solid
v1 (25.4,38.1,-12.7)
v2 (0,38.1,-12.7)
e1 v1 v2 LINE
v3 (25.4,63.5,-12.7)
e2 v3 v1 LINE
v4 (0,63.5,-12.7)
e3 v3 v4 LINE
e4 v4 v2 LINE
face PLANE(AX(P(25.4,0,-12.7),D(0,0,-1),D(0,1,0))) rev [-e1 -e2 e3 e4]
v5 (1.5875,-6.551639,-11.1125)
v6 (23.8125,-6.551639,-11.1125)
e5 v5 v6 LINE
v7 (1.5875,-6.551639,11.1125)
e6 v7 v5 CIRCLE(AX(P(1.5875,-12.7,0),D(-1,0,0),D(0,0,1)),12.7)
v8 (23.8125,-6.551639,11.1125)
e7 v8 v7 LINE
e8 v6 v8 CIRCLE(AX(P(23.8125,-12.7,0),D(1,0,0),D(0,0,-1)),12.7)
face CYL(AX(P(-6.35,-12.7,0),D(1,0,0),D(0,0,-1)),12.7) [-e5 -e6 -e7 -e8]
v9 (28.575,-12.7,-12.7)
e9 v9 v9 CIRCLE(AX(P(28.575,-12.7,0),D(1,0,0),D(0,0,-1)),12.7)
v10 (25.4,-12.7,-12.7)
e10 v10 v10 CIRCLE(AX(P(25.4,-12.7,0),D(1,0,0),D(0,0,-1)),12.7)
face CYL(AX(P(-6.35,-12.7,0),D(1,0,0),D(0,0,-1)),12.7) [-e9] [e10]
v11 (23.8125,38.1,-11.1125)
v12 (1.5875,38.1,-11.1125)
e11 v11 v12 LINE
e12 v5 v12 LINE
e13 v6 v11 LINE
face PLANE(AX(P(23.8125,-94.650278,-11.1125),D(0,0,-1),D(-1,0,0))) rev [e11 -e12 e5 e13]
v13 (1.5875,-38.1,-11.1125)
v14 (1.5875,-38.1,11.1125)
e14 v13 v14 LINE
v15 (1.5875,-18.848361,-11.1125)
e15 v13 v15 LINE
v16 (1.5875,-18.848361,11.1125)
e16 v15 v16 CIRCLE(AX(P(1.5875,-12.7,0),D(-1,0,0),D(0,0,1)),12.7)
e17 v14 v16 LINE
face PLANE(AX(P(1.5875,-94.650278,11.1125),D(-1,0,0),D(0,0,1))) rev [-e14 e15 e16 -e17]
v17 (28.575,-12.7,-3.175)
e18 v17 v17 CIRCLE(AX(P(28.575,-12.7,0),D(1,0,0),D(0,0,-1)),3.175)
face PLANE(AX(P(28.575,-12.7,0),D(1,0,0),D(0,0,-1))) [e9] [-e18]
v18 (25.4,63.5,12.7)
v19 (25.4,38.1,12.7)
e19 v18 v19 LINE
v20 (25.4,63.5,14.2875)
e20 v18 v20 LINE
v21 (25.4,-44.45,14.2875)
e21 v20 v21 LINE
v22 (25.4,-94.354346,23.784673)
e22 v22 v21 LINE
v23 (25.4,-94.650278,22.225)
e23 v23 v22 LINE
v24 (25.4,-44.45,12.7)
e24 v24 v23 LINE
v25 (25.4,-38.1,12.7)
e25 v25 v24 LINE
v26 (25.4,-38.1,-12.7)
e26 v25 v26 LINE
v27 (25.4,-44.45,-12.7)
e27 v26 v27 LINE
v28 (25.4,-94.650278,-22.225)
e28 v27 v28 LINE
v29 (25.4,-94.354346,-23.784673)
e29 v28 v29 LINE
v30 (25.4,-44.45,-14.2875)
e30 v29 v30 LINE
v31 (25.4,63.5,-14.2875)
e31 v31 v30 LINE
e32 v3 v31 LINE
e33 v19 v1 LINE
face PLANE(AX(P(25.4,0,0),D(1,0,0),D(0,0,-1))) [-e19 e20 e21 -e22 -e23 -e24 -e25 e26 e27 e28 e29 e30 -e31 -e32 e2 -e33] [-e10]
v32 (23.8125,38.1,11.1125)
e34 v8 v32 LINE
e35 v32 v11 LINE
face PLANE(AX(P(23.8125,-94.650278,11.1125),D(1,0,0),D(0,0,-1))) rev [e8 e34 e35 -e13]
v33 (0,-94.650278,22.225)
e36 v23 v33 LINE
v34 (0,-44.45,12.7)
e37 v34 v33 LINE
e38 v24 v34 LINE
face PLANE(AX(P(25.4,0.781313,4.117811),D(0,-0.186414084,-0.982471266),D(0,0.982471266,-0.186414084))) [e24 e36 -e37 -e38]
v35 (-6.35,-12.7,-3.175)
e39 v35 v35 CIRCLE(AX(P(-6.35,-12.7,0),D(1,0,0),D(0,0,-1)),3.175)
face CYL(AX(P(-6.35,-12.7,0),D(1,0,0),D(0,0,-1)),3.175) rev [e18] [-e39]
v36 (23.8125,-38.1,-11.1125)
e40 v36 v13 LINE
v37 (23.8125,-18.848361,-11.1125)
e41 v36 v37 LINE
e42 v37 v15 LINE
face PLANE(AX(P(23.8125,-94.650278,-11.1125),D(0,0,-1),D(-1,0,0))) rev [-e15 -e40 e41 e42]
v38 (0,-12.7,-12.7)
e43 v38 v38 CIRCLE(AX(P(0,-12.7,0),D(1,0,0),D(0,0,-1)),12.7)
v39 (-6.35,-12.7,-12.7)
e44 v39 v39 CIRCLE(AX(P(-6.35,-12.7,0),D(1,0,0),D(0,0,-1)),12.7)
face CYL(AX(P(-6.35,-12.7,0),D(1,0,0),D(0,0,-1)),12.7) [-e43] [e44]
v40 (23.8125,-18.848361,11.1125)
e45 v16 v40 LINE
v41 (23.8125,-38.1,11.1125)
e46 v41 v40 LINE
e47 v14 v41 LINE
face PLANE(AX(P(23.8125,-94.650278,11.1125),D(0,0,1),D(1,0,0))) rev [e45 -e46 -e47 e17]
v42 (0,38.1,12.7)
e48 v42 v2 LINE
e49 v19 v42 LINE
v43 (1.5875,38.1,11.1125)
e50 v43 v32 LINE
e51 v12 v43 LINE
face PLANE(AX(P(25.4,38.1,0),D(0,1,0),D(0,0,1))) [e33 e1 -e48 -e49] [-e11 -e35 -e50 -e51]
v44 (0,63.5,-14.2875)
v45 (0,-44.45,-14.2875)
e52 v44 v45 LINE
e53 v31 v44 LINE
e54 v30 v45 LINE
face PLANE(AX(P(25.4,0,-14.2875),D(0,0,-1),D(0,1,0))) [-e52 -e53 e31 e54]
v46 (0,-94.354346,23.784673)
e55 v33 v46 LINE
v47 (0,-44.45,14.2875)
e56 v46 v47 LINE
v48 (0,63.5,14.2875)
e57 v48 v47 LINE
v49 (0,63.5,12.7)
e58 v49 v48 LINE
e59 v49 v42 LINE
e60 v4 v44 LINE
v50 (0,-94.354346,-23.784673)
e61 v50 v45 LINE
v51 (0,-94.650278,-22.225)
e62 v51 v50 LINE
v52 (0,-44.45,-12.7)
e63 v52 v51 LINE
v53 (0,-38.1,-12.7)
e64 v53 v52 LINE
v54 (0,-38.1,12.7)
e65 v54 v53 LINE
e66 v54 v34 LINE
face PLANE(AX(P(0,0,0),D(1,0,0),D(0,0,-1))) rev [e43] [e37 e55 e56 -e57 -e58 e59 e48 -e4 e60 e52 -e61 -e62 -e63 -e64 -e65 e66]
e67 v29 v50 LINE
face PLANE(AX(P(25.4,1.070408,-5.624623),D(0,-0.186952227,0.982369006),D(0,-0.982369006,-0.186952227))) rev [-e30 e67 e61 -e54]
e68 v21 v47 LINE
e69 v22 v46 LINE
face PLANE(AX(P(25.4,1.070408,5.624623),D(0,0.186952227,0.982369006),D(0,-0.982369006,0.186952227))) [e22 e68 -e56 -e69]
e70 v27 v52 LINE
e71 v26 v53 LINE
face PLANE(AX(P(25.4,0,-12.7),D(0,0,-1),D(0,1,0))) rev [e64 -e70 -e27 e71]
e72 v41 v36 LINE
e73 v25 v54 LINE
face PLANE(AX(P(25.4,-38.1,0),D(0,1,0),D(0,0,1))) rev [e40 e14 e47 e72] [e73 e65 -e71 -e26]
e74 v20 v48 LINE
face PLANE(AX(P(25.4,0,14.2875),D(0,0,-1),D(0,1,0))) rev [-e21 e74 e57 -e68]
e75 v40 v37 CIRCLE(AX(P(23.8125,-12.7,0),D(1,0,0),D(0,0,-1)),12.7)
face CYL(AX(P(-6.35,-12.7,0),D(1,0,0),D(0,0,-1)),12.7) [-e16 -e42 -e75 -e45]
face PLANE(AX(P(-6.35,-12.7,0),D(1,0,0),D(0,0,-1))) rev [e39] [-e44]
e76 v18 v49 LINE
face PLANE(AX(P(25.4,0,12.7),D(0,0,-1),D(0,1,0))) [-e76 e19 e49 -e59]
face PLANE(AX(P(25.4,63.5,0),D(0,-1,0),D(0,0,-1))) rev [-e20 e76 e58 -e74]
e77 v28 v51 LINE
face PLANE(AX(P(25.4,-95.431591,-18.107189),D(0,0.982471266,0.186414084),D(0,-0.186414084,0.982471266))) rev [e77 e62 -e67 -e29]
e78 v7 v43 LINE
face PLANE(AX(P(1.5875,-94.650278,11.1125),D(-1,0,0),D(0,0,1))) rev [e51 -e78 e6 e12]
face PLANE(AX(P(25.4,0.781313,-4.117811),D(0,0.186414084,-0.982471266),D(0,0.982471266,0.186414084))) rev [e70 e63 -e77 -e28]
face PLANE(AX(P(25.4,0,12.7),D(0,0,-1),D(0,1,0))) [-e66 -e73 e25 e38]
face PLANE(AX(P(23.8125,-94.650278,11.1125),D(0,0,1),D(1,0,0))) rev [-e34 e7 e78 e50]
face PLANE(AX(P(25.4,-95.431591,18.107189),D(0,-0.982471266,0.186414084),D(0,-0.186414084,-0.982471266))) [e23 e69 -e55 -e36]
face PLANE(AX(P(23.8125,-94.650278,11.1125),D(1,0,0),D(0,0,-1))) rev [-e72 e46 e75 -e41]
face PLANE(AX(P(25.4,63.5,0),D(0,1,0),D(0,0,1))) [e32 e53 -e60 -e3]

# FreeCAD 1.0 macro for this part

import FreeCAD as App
import Part
import Sketcher

V = App.Vector
Q = App.Units.Quantity

doc = App.newDocument("Part")
body = doc.addObject("PartDesign::Body", "Body")

# Sketch on YZ plane
sketch1 = doc.addObject("Sketcher::SketchObject", "Sketch")
body.addObject(sketch1)
sketch1.AttachmentSupport = (doc.YZ_Plane, [""])
sketch1.MapMode = "FlatFace"
sketch1.addGeometry([
    Part.LineSegment(V(-38.1, 12.7, 0), V(-38.1, -12.7, 0)),  # 0
    Part.LineSegment(V(-38.1, -12.7, 0), V(-44.5, -12.7, 0)),  # 1
    Part.LineSegment(V(-44.5, -12.7, 0), V(-94.7, -22.2, 0)),  # 2
    Part.LineSegment(V(-94.7, -22.2, 0), V(-94.4, -23.8, 0)),  # 3
    Part.LineSegment(V(-94.4, -23.8, 0), V(-44.5, -14.3, 0)),  # 4
    Part.LineSegment(V(-44.5, -14.3, 0), V(63.5, -14.3, 0)),  # 5
    Part.LineSegment(V(63.5, -14.3, 0), V(63.5, -12.7, 0)),  # 6
    Part.LineSegment(V(63.5, -12.7, 0), V(38.1, -12.7, 0)),  # 7
    Part.LineSegment(V(38.1, -12.7, 0), V(38.1, 12.7, 0)),  # 8
    Part.LineSegment(V(38.1, 12.7, 0), V(63.5, 12.7, 0)),  # 9
    Part.LineSegment(V(63.5, 12.7, 0), V(63.5, 14.3, 0)),  # 10
    Part.LineSegment(V(63.5, 14.3, 0), V(-44.5, 14.3, 0)),  # 11
    Part.LineSegment(V(-44.5, 14.3, 0), V(-94.4, 23.8, 0)),  # 12
    Part.LineSegment(V(-94.4, 23.8, 0), V(-94.7, 22.2, 0)),  # 13
    Part.LineSegment(V(-94.7, 22.2, 0), V(-44.5, 12.7, 0)),  # 14
    Part.LineSegment(V(-44.5, 12.7, 0), V(-38.1, 12.7, 0)),  # 15
], False)
sketch1.addConstraint([
    Sketcher.Constraint("Coincident", 0, 2, 1, 1),
    Sketcher.Constraint("Coincident", 1, 2, 2, 1),
    Sketcher.Constraint("Coincident", 2, 2, 3, 1),
    Sketcher.Constraint("Coincident", 3, 2, 4, 1),
    Sketcher.Constraint("Coincident", 4, 2, 5, 1),
    Sketcher.Constraint("Coincident", 5, 2, 6, 1),
    Sketcher.Constraint("Coincident", 6, 2, 7, 1),
    Sketcher.Constraint("Coincident", 7, 2, 8, 1),
    Sketcher.Constraint("Coincident", 8, 2, 9, 1),
    Sketcher.Constraint("Coincident", 9, 2, 10, 1),
    Sketcher.Constraint("Coincident", 10, 2, 11, 1),
    Sketcher.Constraint("Coincident", 11, 2, 12, 1),
    Sketcher.Constraint("Coincident", 12, 2, 13, 1),
    Sketcher.Constraint("Coincident", 13, 2, 14, 1),
    Sketcher.Constraint("Coincident", 14, 2, 15, 1),
    Sketcher.Constraint("Coincident", 15, 2, 0, 1),
    Sketcher.Constraint("Vertical", 0),
    Sketcher.Constraint("Horizontal", 1),
    Sketcher.Constraint("Horizontal", 5),
    Sketcher.Constraint("Vertical", 6),
    Sketcher.Constraint("Horizontal", 7),
    Sketcher.Constraint("Vertical", 8),
    Sketcher.Constraint("Horizontal", 9),
    Sketcher.Constraint("Vertical", 10),
    Sketcher.Constraint("Horizontal", 11),
    Sketcher.Constraint("Horizontal", 15),
    Sketcher.Constraint("Symmetric", 0, 2, 8, 2, -1, 1),
    Sketcher.Constraint("Symmetric", 6, 2, 9, 2, -1),
    Sketcher.Constraint("Symmetric", 4, 2, 11, 2, -1),
    Sketcher.Constraint("Symmetric", 3, 2, 12, 2, -1),
    Sketcher.Constraint("Symmetric", 2, 2, 13, 2, -1),
    Sketcher.Constraint("Symmetric", 1, 2, 14, 2, -1),
    Sketcher.Constraint("Perpendicular", 2, 3),
    Sketcher.Constraint("Vertical", 1, 2, 4, 2),
    Sketcher.Constraint("Equal", 9, 0),
    Sketcher.Constraint("DistanceX", 7, 2, 7, 1, Q("1 in")),
    Sketcher.Constraint("Distance", 4, Q("2 in")),
    Sketcher.Constraint("DistanceX", 0, 2, 5, 2, Q("4 in")),
    Sketcher.Constraint("DistanceX", 1, 2, 1, 1, Q("0.25 in")),
    Sketcher.Constraint("DistanceY", 6, 1, 6, 2, Q("0.0625 in")),
    Sketcher.Constraint("DistanceY", 2, 2, 13, 2, Q("1.75 in")),
    Sketcher.Constraint("Distance", 3, Q("0.0625 in")),
])
pad1 = doc.addObject("PartDesign::Pad", "Pad")
body.addObject(pad1)
pad1.Profile = sketch1
pad1.Length = Q("1 in")

# Sketch on XZ plane
sketch2 = doc.addObject("Sketcher::SketchObject", "Sketch001")
body.addObject(sketch2)
sketch2.AttachmentSupport = (doc.XZ_Plane, [""])
sketch2.MapMode = "FlatFace"
sketch2.AttachmentOffset = App.Placement(V(0, 0, -1.5 * 25.4), App.Rotation())
sketch2.addGeometry([
    Part.LineSegment(V(2, -11, 0), V(2, 11, 0)),
    Part.LineSegment(V(2, 11, 0), V(24, 11, 0)),
    Part.LineSegment(V(24, 11, 0), V(24, -11, 0)),
    Part.LineSegment(V(24, -11, 0), V(2, -11, 0)),
], False)
sketch2.addConstraint([
    Sketcher.Constraint("Coincident", 0, 2, 1, 1),
    Sketcher.Constraint("Coincident", 1, 2, 2, 1),
    Sketcher.Constraint("Coincident", 2, 2, 3, 1),
    Sketcher.Constraint("Coincident", 3, 2, 0, 1),
    Sketcher.Constraint("Vertical", 0),
    Sketcher.Constraint("Horizontal", 1),
    Sketcher.Constraint("Vertical", 2),
    Sketcher.Constraint("Horizontal", 3),
    Sketcher.Constraint("Equal", 3, 0),
    Sketcher.Constraint("DistanceX", 1, 1, 1, 2, Q("0.875 in")),
    Sketcher.Constraint("DistanceX", -1, 1, 0, 2, Q("0.0625 in")),
    Sketcher.Constraint("DistanceY", -1, 1, 0, 2, Q("0.4375 in")),
])
pocket1 = doc.addObject("PartDesign::Pocket", "Pocket")
body.addObject(pocket1)
pocket1.Profile = sketch2
pocket1.Type = "ThroughAll"
pocket1.Reversed = True

# Sketch on YZ plane
sketch3 = doc.addObject("Sketcher::SketchObject", "Sketch002")
body.addObject(sketch3)
sketch3.AttachmentSupport = (doc.YZ_Plane, [""])
sketch3.MapMode = "FlatFace"
sketch3.AttachmentOffset = App.Placement(V(0, 0, 1 * 25.4), App.Rotation())
sketch3.addGeometry(Part.Circle(V(-13, 0, 0), V(0, 0, 1), 13), False)
sketch3.addConstraint([
    Sketcher.Constraint("PointOnObject", 0, 3, -1),
    Sketcher.Constraint("Diameter", 0, Q("1 in")),
    Sketcher.Constraint("DistanceX", 0, 3, -1, 1, Q("0.5 in")),
])
pad2 = doc.addObject("PartDesign::Pad", "Pad001")
body.addObject(pad2)
pad2.Profile = sketch3
pad2.Type = "TwoLengths"
pad2.Length = Q("0.125 in")
pad2.Length2 = Q("1.25 in")

# Sketch on YZ plane
sketch4 = doc.addObject("Sketcher::SketchObject", "Sketch003")
body.addObject(sketch4)
sketch4.AttachmentSupport = (doc.YZ_Plane, [""])
sketch4.MapMode = "FlatFace"
sketch4.AttachmentOffset = App.Placement(V(0, 0, 1.125 * 25.4), App.Rotation())
sketch4.addGeometry(Part.Circle(V(-12.7, 0, 0), V(0, 0, 1), 3.2), False)
sketch4.addConstraint([
    Sketcher.Constraint("PointOnObject", 0, 3, -1),
    Sketcher.Constraint("Diameter", 0, Q("0.25 in")),
    Sketcher.Constraint("DistanceX", 0, 3, -1, 1, Q("0.5 in")),
])
pocket2 = doc.addObject("PartDesign::Pocket", "Pocket001")
body.addObject(pocket2)
pocket2.Profile = sketch4
pocket2.Type = "ThroughAll"

doc.recompute()
